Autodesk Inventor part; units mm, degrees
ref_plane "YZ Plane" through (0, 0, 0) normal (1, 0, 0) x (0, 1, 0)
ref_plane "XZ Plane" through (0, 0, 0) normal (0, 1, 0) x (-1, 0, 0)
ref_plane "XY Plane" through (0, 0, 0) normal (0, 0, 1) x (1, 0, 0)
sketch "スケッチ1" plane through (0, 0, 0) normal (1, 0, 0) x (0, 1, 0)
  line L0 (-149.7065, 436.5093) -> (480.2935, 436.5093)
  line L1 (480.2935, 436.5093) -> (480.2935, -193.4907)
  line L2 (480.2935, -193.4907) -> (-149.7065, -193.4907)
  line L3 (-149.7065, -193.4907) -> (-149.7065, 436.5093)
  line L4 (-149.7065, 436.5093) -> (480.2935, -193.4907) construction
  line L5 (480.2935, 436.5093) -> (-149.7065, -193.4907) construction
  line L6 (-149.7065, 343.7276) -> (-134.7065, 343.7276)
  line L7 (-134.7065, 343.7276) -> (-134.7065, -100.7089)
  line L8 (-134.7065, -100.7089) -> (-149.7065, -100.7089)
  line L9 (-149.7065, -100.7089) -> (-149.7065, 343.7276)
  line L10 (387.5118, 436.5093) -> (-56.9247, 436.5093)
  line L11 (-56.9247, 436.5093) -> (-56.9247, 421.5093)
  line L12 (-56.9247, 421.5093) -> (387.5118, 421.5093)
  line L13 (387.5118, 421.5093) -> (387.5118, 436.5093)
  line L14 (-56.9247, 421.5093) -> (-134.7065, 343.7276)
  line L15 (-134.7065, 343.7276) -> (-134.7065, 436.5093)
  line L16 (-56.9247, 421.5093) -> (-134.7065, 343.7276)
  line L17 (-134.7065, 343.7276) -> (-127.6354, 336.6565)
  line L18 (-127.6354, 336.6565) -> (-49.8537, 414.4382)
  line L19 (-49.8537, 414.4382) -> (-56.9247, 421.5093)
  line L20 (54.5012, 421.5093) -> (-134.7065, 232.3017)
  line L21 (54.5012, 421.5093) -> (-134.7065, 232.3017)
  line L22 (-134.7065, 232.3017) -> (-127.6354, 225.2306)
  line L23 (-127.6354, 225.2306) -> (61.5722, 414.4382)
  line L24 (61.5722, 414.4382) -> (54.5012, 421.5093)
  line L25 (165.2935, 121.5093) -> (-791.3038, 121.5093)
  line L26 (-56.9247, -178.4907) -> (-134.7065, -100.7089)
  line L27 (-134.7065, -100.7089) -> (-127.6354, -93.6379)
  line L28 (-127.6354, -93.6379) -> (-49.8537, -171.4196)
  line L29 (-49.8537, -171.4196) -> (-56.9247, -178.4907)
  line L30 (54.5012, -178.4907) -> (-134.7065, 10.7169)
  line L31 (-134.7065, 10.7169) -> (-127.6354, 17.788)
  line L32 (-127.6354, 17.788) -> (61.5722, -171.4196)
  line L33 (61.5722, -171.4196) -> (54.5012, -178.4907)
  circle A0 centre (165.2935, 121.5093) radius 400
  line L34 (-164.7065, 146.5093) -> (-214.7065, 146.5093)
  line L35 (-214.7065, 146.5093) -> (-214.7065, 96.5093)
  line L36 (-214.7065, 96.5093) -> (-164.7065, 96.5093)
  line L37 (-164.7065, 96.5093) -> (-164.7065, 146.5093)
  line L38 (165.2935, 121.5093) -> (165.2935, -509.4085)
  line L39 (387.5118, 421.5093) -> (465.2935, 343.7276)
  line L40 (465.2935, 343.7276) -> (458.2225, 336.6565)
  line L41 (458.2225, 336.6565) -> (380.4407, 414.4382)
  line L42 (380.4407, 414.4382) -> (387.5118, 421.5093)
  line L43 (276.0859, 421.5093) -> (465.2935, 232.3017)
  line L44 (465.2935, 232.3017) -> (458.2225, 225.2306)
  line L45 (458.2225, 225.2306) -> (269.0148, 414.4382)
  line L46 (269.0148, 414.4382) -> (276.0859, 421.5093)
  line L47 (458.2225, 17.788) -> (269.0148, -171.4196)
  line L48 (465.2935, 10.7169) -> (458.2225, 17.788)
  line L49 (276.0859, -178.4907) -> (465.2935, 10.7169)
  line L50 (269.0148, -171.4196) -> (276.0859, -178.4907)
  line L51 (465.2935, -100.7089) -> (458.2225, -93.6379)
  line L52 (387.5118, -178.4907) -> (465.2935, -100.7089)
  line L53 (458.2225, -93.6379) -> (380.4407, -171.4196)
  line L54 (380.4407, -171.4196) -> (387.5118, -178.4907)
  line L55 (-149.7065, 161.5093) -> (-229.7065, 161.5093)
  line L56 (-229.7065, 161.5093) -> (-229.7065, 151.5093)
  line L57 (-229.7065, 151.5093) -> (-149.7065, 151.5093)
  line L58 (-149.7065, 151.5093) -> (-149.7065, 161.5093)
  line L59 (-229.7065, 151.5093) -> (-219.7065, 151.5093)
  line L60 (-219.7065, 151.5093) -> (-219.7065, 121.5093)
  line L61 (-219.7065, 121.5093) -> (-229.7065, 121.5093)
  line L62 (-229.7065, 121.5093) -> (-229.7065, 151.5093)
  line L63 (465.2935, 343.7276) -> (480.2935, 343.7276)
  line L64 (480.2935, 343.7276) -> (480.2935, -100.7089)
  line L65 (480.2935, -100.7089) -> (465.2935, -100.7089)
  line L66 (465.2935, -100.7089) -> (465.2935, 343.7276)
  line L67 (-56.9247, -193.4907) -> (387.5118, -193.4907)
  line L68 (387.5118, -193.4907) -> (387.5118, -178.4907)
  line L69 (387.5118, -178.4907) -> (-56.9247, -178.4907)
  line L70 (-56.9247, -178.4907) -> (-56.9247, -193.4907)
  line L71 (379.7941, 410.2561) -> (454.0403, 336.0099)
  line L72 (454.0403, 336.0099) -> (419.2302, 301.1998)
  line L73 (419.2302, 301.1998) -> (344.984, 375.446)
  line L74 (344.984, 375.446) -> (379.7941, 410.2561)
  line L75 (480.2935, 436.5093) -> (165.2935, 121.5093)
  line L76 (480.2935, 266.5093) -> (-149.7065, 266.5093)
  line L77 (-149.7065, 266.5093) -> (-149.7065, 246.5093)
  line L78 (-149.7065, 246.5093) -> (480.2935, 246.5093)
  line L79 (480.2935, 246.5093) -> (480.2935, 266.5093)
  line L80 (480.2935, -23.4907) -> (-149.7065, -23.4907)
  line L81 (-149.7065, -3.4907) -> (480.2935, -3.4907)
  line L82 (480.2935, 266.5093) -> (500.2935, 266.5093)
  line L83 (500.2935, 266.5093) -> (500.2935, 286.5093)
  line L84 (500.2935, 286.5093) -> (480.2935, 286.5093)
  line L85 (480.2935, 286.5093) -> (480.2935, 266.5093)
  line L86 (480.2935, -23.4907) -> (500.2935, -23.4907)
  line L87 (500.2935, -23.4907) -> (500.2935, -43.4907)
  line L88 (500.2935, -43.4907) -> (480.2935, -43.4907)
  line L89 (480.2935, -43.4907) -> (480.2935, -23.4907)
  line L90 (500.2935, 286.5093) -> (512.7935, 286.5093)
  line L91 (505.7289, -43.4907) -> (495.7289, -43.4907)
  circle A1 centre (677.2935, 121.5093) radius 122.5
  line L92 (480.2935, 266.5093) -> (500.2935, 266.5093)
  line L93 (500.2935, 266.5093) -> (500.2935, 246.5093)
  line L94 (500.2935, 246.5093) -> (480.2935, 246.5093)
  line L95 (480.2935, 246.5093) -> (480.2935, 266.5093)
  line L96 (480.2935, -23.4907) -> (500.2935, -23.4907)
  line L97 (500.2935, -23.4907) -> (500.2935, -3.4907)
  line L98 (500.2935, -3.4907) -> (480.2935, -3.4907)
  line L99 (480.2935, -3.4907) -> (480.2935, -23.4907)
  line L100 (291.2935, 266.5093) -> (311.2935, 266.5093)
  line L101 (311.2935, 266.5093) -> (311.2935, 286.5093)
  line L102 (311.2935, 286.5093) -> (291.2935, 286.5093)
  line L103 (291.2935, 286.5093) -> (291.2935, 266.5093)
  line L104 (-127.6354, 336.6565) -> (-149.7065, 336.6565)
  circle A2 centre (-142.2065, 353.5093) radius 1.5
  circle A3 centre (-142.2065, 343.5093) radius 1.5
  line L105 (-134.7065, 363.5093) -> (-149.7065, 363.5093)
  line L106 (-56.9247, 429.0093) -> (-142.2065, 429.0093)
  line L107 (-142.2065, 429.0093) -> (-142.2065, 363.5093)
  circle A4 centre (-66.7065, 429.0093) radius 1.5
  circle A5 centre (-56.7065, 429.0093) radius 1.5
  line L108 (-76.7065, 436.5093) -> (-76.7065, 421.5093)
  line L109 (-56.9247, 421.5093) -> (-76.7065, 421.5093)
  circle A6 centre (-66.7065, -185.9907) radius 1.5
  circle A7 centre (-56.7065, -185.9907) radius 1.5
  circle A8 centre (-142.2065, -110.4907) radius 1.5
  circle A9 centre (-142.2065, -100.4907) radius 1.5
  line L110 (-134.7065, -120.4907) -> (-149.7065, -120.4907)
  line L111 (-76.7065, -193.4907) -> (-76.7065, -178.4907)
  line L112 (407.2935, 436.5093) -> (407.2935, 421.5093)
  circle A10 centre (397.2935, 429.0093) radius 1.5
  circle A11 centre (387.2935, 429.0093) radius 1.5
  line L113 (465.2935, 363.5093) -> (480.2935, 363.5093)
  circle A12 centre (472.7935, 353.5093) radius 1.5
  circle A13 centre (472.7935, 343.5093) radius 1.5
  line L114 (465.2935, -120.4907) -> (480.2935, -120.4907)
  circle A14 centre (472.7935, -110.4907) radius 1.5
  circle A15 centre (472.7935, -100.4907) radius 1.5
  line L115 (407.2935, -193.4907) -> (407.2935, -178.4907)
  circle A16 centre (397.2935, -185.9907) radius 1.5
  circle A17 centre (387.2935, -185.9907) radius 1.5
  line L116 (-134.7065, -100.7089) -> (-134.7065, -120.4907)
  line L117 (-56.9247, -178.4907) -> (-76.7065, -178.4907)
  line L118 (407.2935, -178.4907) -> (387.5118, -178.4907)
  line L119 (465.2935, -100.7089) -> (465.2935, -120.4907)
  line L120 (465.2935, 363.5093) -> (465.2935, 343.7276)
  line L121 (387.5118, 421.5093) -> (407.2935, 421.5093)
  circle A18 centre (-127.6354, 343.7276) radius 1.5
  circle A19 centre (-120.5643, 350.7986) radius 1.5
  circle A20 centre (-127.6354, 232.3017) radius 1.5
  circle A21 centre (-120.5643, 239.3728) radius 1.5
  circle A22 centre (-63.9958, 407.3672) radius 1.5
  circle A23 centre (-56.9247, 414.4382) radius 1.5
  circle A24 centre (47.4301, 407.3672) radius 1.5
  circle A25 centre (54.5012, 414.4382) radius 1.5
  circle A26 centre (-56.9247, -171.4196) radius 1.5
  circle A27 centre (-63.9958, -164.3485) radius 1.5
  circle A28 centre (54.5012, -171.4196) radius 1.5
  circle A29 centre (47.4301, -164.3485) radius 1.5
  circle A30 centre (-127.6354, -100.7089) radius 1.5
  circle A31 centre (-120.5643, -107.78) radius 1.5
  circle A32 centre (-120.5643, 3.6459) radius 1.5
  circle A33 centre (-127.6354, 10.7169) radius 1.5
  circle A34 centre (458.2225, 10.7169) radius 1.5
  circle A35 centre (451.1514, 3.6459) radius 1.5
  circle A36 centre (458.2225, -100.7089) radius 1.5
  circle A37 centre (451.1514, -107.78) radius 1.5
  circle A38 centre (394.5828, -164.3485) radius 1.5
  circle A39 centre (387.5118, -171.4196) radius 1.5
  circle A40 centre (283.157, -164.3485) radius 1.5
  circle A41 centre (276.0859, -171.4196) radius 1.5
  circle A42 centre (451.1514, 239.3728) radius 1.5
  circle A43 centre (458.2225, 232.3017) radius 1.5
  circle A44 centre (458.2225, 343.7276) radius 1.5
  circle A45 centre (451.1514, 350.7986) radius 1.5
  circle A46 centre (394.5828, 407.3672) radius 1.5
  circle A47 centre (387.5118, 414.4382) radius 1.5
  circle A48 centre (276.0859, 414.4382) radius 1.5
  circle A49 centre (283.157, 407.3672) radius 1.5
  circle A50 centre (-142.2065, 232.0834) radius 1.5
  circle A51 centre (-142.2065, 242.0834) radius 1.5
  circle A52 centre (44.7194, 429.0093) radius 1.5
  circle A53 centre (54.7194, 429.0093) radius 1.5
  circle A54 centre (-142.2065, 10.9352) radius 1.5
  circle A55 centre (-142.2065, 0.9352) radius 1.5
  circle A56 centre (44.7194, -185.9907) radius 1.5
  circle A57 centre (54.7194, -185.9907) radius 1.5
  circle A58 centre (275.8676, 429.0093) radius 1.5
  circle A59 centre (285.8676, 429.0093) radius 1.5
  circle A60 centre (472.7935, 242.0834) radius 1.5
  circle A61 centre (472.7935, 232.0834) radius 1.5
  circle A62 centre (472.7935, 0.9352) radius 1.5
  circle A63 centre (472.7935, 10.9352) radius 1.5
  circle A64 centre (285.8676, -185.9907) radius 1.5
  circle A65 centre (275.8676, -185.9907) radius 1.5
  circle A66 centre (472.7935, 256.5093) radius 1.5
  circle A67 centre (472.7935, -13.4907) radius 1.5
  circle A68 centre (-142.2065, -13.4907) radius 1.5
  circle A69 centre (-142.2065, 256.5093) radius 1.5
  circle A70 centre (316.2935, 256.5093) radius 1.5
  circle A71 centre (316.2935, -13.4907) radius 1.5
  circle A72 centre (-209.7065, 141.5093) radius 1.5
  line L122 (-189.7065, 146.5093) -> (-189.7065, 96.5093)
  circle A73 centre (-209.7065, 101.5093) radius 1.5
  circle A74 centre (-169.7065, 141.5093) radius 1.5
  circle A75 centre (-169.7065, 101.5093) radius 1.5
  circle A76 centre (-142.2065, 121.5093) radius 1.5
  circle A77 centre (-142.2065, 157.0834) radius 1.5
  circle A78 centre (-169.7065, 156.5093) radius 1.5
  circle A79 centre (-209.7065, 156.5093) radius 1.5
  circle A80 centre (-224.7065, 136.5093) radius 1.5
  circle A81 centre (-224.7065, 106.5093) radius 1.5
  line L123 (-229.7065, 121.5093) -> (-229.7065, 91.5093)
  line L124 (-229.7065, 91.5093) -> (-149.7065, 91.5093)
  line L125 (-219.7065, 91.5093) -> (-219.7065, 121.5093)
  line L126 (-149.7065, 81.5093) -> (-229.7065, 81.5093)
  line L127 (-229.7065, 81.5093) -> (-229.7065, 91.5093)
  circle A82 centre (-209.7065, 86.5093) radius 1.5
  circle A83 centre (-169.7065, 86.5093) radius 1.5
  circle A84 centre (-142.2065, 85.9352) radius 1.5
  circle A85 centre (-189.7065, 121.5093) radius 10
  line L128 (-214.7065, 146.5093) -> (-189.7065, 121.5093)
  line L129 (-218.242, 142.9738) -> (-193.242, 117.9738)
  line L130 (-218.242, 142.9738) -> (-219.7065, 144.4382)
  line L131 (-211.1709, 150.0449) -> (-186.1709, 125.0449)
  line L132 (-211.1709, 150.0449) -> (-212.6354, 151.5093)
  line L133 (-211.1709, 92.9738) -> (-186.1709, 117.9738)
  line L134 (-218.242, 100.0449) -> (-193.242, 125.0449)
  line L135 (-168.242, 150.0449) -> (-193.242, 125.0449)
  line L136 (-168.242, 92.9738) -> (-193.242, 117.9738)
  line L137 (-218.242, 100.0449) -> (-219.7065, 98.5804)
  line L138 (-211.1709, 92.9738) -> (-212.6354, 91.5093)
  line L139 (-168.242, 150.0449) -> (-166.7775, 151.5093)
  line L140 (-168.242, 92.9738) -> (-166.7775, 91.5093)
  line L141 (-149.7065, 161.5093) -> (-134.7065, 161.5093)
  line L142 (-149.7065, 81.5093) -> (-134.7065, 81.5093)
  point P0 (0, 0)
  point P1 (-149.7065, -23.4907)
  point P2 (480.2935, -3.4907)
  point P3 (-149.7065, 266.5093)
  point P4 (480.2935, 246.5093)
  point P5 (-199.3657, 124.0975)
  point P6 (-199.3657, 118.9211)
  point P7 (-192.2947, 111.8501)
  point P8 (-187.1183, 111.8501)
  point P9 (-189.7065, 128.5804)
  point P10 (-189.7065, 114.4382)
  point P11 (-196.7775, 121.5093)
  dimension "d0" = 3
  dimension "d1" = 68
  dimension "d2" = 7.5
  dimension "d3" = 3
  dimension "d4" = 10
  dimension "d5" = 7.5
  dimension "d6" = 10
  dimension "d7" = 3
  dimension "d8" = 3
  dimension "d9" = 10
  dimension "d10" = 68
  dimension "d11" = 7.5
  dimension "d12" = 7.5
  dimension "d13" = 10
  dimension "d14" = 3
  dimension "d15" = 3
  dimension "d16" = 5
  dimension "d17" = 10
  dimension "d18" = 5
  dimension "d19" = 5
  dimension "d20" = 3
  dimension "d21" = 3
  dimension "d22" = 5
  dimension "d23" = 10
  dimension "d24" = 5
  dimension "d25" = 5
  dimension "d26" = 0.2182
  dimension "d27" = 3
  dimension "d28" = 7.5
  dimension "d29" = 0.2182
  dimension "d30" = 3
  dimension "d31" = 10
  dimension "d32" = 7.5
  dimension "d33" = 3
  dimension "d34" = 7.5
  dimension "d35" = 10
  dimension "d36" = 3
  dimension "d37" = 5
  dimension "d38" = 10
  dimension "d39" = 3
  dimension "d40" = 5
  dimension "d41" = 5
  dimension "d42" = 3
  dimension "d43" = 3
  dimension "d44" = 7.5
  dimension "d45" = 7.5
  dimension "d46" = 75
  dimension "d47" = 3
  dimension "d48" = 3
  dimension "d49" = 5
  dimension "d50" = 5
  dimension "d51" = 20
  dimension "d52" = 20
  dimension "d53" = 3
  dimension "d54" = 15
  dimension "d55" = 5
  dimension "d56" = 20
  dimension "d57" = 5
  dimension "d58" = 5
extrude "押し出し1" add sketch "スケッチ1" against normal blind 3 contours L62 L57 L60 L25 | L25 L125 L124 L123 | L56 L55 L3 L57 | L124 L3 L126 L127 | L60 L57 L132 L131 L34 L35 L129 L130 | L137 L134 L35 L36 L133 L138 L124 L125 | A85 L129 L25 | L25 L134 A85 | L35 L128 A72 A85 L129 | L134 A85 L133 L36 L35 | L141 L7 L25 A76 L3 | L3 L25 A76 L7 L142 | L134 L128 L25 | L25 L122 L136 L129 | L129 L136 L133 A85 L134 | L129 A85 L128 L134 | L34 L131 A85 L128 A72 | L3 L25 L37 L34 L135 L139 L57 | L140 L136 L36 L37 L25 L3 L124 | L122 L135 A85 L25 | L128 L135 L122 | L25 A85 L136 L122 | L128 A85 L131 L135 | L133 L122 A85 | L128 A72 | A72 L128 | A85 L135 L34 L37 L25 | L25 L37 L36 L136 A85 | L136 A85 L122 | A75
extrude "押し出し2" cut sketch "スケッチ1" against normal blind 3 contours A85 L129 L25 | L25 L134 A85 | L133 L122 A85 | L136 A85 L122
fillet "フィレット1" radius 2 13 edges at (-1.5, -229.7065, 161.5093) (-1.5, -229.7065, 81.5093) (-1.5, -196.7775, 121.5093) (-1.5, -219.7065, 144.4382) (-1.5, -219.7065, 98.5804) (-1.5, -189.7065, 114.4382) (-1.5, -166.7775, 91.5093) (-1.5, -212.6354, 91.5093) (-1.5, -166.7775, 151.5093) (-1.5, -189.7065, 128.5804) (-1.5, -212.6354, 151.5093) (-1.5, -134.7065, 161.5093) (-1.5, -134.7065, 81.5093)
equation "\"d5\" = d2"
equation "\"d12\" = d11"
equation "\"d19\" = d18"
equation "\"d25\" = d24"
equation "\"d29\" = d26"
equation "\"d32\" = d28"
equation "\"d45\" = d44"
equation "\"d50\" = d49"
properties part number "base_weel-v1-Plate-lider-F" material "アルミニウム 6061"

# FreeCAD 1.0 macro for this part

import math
import FreeCAD as App
import Part
import Sketcher
Q = App.Units.Quantity


def edges_at(feature, points):
    """Names of the edges that pass closest to the given points."""
    edges = feature.Shape.Edges
    near = lambda p: min(range(len(edges)), key=lambda i: edges[i].distToShape(Part.Vertex(*p))[0])
    return sorted({f"Edge{near(p) + 1}" for p in points})

doc = App.newDocument("Part")
body = doc.addObject("PartDesign::Body", "Body")

# Sketch on YZ plane
sketch1 = body.newObject("Sketcher::SketchObject", "Sketch")
sketch1.AttachmentSupport = (doc.getObject("YZ_Plane"), [""])
sketch1.MapMode = "FlatFace"
sketch1.addGeometry([
    Part.LineSegment(App.Vector(-229.7, 81.5, 0), App.Vector(-134.7, 81.5, 0)),  # 0
    Part.LineSegment(App.Vector(-134.7, 81.5, 0), App.Vector(-134.7, 161.5, 0)),  # 1
    Part.LineSegment(App.Vector(-134.7, 161.5, 0), App.Vector(-229.7, 161.5, 0)),  # 2
    Part.LineSegment(App.Vector(-229.7, 161.5, 0), App.Vector(-229.7, 81.5, 0)),  # 3
    Part.LineSegment(App.Vector(-219.7, 144.4, 0), App.Vector(-218.2, 143, 0)),  # 4
    Part.LineSegment(App.Vector(-218.2, 143, 0), App.Vector(-199.4, 124.1, 0)),  # 5
    Part.ArcOfCircle(Part.Circle(App.Vector(-189.7, 121.5, 0), App.Vector(0, 0, 1), 10), math.radians(165), math.radians(195)),  # 6
    Part.LineSegment(App.Vector(-199.4, 118.9, 0), App.Vector(-219.7, 98.6, 0)),  # 7
    Part.LineSegment(App.Vector(-219.7, 98.6, 0), App.Vector(-219.7, 144.4, 0)),  # 8
    Part.Circle(App.Vector(-224.7, 136.5, 0), App.Vector(0, 0, 1), 1.5),  # 9
    Part.LineSegment(App.Vector(-212.6, 151.5, 0), App.Vector(-166.8, 151.5, 0)),  # 10
    Part.LineSegment(App.Vector(-166.8, 151.5, 0), App.Vector(-168.2, 150, 0)),  # 11
    Part.LineSegment(App.Vector(-168.2, 150, 0), App.Vector(-189.7, 128.6, 0)),  # 12
    Part.LineSegment(App.Vector(-189.7, 128.6, 0), App.Vector(-211.2, 150, 0)),  # 13
    Part.LineSegment(App.Vector(-211.2, 150, 0), App.Vector(-212.6, 151.5, 0)),  # 14
    Part.Circle(App.Vector(-169.7, 156.5, 0), App.Vector(0, 0, 1), 1.5),  # 15
    Part.Circle(App.Vector(-209.7, 156.5, 0), App.Vector(0, 0, 1), 1.5),  # 16
    Part.Circle(App.Vector(-224.7, 106.5, 0), App.Vector(0, 0, 1), 1.5),  # 17
    Part.Circle(App.Vector(-142.2, 121.5, 0), App.Vector(0, 0, 1), 1.5),  # 18
    Part.Circle(App.Vector(-142.2, 157.1, 0), App.Vector(0, 0, 1), 1.5),  # 19
    Part.ArcOfCircle(Part.Circle(App.Vector(-189.7, 121.5, 0), App.Vector(0, 0, 1), 10), math.radians(-105), math.radians(-75)),  # 20
    Part.LineSegment(App.Vector(-187.1, 111.9, 0), App.Vector(-166.8, 91.5, 0)),  # 21
    Part.LineSegment(App.Vector(-166.8, 91.5, 0), App.Vector(-212.6, 91.5, 0)),  # 22
    Part.LineSegment(App.Vector(-212.6, 91.5, 0), App.Vector(-192.3, 111.9, 0)),  # 23
    Part.Circle(App.Vector(-169.7, 86.5, 0), App.Vector(0, 0, 1), 1.5),  # 24
    Part.Circle(App.Vector(-209.7, 86.5, 0), App.Vector(0, 0, 1), 1.5),  # 25
    Part.Circle(App.Vector(-142.2, 85.9, 0), App.Vector(0, 0, 1), 1.5),  # 26
    Part.Circle(App.Vector(-169.7, 141.5, 0), App.Vector(0, 0, 1), 1.5),  # 27
    Part.Circle(App.Vector(-209.7, 101.5, 0), App.Vector(0, 0, 1), 1.5),  # 28
], False)
sketch1.addConstraint([
    Sketcher.Constraint("Coincident", 0, 2, 1, 1),
    Sketcher.Constraint("Coincident", 1, 2, 2, 1),
    Sketcher.Constraint("Coincident", 2, 2, 3, 1),
    Sketcher.Constraint("Coincident", 3, 2, 0, 1),
    Sketcher.Constraint("Coincident", 4, 2, 5, 1),
    Sketcher.Constraint("Coincident", 5, 2, 6, 1),
    Sketcher.Constraint("Coincident", 6, 2, 7, 1),
    Sketcher.Constraint("Coincident", 7, 2, 8, 1),
    Sketcher.Constraint("Coincident", 8, 2, 4, 1),
    Sketcher.Constraint("Coincident", 10, 2, 11, 1),
    Sketcher.Constraint("Coincident", 11, 2, 12, 1),
    Sketcher.Constraint("Coincident", 12, 2, 13, 1),
    Sketcher.Constraint("Coincident", 13, 2, 14, 1),
    Sketcher.Constraint("Coincident", 14, 2, 10, 1),
    Sketcher.Constraint("Coincident", 20, 2, 21, 1),
    Sketcher.Constraint("Coincident", 21, 2, 22, 1),
    Sketcher.Constraint("Coincident", 22, 2, 23, 1),
    Sketcher.Constraint("Coincident", 23, 2, 20, 1),
    Sketcher.Constraint("Horizontal", 0),
    Sketcher.Constraint("Vertical", 1),
    Sketcher.Constraint("Horizontal", 2),
    Sketcher.Constraint("Vertical", 3),
    Sketcher.Constraint("Vertical", 8),
    Sketcher.Constraint("Horizontal", 10),
    Sketcher.Constraint("Horizontal", 22),
    Sketcher.Constraint("Coincident", 20, 3, 6, 3),
    Sketcher.Constraint("Equal", 9, 15),
    Sketcher.Constraint("Equal", 15, 16),
    Sketcher.Constraint("Equal", 16, 17),
    Sketcher.Constraint("Equal", 17, 18),
    Sketcher.Constraint("Equal", 18, 19),
    Sketcher.Constraint("Equal", 6, 20),
    Sketcher.Constraint("Equal", 19, 24),
    Sketcher.Constraint("Equal", 24, 25),
    Sketcher.Constraint("Equal", 25, 26),
    Sketcher.Constraint("Equal", 26, 27),
    Sketcher.Constraint("Equal", 27, 28),
    Sketcher.Constraint("Parallel", 4, 5),
    Sketcher.Constraint("Perpendicular", 5, 7),
    Sketcher.Constraint("Parallel", 7, 11),
    Sketcher.Constraint("Parallel", 11, 12),
    Sketcher.Constraint("Perpendicular", 12, 13),
    Sketcher.Constraint("Parallel", 13, 14),
    Sketcher.Constraint("Parallel", 14, 21),
    Sketcher.Constraint("Perpendicular", 21, 23),
    Sketcher.Constraint("Horizontal", 15, 3, 16, 3),
    Sketcher.Constraint("Horizontal", 6, 3, 18, 3),
    Sketcher.Constraint("Horizontal", 24, 3, 25, 3),
    Sketcher.Constraint("Horizontal", 11, 2, 13, 2),
    Sketcher.Constraint("Horizontal", 20, 2, 23, 2),
    Sketcher.Constraint("Vertical", 9, 3, 17, 3),
    Sketcher.Constraint("Vertical", 18, 3, 19, 3),
    Sketcher.Constraint("Vertical", 15, 3, 24, 3),
    Sketcher.Constraint("Vertical", 16, 3, 25, 3),
    Sketcher.Constraint("Vertical", 19, 3, 26, 3),
    Sketcher.Constraint("Vertical", 24, 3, 27, 3),
    Sketcher.Constraint("Vertical", 25, 3, 28, 3),
    Sketcher.Constraint("Vertical", 5, 2, 6, 2),
    Sketcher.Constraint("Vertical", 20, 3, 12, 2),
    Sketcher.Constraint("Vertical", 10, 2, 21, 2),
    Sketcher.Constraint("Vertical", 14, 2, 22, 2),
    Sketcher.Constraint("Equal", 22, 8),
    Sketcher.Constraint("Equal", 4, 11),
    Sketcher.Constraint("Equal", 7, 21),
    Sketcher.Constraint("Diameter", 9, Q("3 mm")),
    Sketcher.Constraint("Radius", 6, Q("10 mm")),
    Sketcher.Constraint("DistanceY", 6, 3, 9, 3, Q("15 mm")),
    Sketcher.Constraint("DistanceX", 6, 3, 15, 3, Q("20 mm")),
    Sketcher.Constraint("DistanceY", 9, 3, 15, 3, Q("20 mm")),
    Sketcher.Constraint("DistanceX", 9, 3, 16, 3, Q("15 mm")),
    Sketcher.Constraint("DistanceX", 16, 3, 6, 3, Q("20 mm")),
    Sketcher.Constraint("DistanceY", 17, 3, 6, 3, Q("15 mm")),
    Sketcher.Constraint("DistanceY", 24, 3, 17, 3, Q("20 mm")),
    Sketcher.Constraint("DistanceY", 27, 3, 15, 3, Q("15 mm")),
    Sketcher.Constraint("DistanceY", 25, 3, 28, 3, Q("15 mm")),
    Sketcher.Constraint("DistanceY", 0, 2, 24, 3, Q("5 mm")),
    Sketcher.Constraint("DistanceY", 15, 3, 1, 2, Q("5 mm")),
    Sketcher.Constraint("DistanceX", 2, 2, 16, 3, Q("20 mm")),
    Sketcher.Constraint("DistanceX", 17, 3, 7, 2, Q("5 mm")),
    Sketcher.Constraint("DistanceY", 10, 2, 15, 3, Q("5 mm")),
    Sketcher.Constraint("DistanceX", 26, 3, 0, 2, Q("7.5 mm")),
    Sketcher.Constraint("DistanceX", 0, 1, 0, 2, Q("95 mm")),
    Sketcher.Constraint("DistanceX", 10, 1, 10, 2, Q("45.858 mm")),
    Sketcher.Constraint("DistanceY", -1, 1, 20, 2, Q("111.85 mm")),
    Sketcher.Constraint("Distance", 4, Q("2.071 mm")),
    Sketcher.Constraint("DistanceX", 4, 2, -1, 1, Q("218.242 mm")),
    Sketcher.Constraint("DistanceY", 15, 3, 19, 3, Q("0.574 mm")),
    Sketcher.Constraint("DistanceY", 26, 3, 24, 3, Q("0.574 mm")),
])
pad1 = body.newObject("PartDesign::Pad", "Pad")
pad1.Profile = sketch1
pad1.Length = 3
pad1.Reversed = True

# Sketch on YZ plane
sketch2 = body.newObject("Sketcher::SketchObject", "Sketch001")
sketch2.AttachmentSupport = (doc.getObject("YZ_Plane"), [""])
sketch2.MapMode = "FlatFace"
sketch2.addGeometry([
    Part.ArcOfCircle(Part.Circle(App.Vector(-189.7, 121.5, 0), App.Vector(0, 0, 1), 10), math.radians(165), math.radians(195)),  # 0
    Part.LineSegment(App.Vector(-199.4, 118.9, 0), App.Vector(-196.8, 121.5, 0)),  # 1
    Part.LineSegment(App.Vector(-196.8, 121.5, 0), App.Vector(-199.4, 124.1, 0)),  # 2
    Part.LineSegment(App.Vector(-189.7, 114.4, 0), App.Vector(-192.3, 111.9, 0)),  # 3
    Part.ArcOfCircle(Part.Circle(App.Vector(-189.7, 121.5, 0), App.Vector(0, 0, 1), 10), math.radians(-105), math.radians(-75)),  # 4
    Part.LineSegment(App.Vector(-187.1, 111.9, 0), App.Vector(-189.7, 114.4, 0)),  # 5
], False)
sketch2.addConstraint([
    Sketcher.Constraint("Coincident", 0, 2, 1, 1),
    Sketcher.Constraint("Coincident", 1, 2, 2, 1),
    Sketcher.Constraint("Coincident", 2, 2, 0, 1),
    Sketcher.Constraint("Coincident", 3, 2, 4, 1),
    Sketcher.Constraint("Coincident", 4, 2, 5, 1),
    Sketcher.Constraint("Coincident", 5, 2, 3, 1),
    Sketcher.Constraint("Coincident", 4, 3, 0, 3),
    Sketcher.Constraint("Equal", 0, 4),
    Sketcher.Constraint("Perpendicular", 1, 2),
    Sketcher.Constraint("Perpendicular", 2, 3),
    Sketcher.Constraint("Perpendicular", 3, 5),
    Sketcher.Constraint("Horizontal", 4, 3, 1, 2),
    Sketcher.Constraint("Horizontal", 3, 2, 4, 2),
    Sketcher.Constraint("Vertical", 0, 2, 2, 2),
    Sketcher.Constraint("Equal", 2, 3),
    Sketcher.Constraint("Radius", 0, Q("10 mm")),
    Sketcher.Constraint("DistanceY", -1, 1, 3, 2, Q("111.85 mm")),
    Sketcher.Constraint("DistanceX", 1, 2, 0, 3, Q("7.071 mm")),
    Sketcher.Constraint("DistanceX", 0, 3, -1, 1, Q("189.7065 mm")),
])
pocket1 = body.newObject("PartDesign::Pocket", "Pocket")
pocket1.Profile = sketch2
pocket1.Length = 3
doc.recompute()

fillet = body.newObject("PartDesign::Fillet", "Fillet")
fillet.Base = (pocket1, edges_at(pocket1, [
    (-1.5, -229.707, 161.509),
    (-1.5, -229.707, 81.509),
    (-1.5, -196.778, 121.509),
    (-1.5, -219.707, 144.438),
    (-1.5, -219.707, 98.58),
    (-1.5, -189.707, 114.438),
    (-1.5, -166.778, 91.509),
    (-1.5, -212.635, 91.509),
    (-1.5, -166.778, 151.509),
    (-1.5, -189.707, 128.58),
    (-1.5, -212.635, 151.509),
    (-1.5, -134.707, 161.509),
    (-1.5, -134.707, 81.509),
]))
fillet.Radius = 2

doc.recompute()
